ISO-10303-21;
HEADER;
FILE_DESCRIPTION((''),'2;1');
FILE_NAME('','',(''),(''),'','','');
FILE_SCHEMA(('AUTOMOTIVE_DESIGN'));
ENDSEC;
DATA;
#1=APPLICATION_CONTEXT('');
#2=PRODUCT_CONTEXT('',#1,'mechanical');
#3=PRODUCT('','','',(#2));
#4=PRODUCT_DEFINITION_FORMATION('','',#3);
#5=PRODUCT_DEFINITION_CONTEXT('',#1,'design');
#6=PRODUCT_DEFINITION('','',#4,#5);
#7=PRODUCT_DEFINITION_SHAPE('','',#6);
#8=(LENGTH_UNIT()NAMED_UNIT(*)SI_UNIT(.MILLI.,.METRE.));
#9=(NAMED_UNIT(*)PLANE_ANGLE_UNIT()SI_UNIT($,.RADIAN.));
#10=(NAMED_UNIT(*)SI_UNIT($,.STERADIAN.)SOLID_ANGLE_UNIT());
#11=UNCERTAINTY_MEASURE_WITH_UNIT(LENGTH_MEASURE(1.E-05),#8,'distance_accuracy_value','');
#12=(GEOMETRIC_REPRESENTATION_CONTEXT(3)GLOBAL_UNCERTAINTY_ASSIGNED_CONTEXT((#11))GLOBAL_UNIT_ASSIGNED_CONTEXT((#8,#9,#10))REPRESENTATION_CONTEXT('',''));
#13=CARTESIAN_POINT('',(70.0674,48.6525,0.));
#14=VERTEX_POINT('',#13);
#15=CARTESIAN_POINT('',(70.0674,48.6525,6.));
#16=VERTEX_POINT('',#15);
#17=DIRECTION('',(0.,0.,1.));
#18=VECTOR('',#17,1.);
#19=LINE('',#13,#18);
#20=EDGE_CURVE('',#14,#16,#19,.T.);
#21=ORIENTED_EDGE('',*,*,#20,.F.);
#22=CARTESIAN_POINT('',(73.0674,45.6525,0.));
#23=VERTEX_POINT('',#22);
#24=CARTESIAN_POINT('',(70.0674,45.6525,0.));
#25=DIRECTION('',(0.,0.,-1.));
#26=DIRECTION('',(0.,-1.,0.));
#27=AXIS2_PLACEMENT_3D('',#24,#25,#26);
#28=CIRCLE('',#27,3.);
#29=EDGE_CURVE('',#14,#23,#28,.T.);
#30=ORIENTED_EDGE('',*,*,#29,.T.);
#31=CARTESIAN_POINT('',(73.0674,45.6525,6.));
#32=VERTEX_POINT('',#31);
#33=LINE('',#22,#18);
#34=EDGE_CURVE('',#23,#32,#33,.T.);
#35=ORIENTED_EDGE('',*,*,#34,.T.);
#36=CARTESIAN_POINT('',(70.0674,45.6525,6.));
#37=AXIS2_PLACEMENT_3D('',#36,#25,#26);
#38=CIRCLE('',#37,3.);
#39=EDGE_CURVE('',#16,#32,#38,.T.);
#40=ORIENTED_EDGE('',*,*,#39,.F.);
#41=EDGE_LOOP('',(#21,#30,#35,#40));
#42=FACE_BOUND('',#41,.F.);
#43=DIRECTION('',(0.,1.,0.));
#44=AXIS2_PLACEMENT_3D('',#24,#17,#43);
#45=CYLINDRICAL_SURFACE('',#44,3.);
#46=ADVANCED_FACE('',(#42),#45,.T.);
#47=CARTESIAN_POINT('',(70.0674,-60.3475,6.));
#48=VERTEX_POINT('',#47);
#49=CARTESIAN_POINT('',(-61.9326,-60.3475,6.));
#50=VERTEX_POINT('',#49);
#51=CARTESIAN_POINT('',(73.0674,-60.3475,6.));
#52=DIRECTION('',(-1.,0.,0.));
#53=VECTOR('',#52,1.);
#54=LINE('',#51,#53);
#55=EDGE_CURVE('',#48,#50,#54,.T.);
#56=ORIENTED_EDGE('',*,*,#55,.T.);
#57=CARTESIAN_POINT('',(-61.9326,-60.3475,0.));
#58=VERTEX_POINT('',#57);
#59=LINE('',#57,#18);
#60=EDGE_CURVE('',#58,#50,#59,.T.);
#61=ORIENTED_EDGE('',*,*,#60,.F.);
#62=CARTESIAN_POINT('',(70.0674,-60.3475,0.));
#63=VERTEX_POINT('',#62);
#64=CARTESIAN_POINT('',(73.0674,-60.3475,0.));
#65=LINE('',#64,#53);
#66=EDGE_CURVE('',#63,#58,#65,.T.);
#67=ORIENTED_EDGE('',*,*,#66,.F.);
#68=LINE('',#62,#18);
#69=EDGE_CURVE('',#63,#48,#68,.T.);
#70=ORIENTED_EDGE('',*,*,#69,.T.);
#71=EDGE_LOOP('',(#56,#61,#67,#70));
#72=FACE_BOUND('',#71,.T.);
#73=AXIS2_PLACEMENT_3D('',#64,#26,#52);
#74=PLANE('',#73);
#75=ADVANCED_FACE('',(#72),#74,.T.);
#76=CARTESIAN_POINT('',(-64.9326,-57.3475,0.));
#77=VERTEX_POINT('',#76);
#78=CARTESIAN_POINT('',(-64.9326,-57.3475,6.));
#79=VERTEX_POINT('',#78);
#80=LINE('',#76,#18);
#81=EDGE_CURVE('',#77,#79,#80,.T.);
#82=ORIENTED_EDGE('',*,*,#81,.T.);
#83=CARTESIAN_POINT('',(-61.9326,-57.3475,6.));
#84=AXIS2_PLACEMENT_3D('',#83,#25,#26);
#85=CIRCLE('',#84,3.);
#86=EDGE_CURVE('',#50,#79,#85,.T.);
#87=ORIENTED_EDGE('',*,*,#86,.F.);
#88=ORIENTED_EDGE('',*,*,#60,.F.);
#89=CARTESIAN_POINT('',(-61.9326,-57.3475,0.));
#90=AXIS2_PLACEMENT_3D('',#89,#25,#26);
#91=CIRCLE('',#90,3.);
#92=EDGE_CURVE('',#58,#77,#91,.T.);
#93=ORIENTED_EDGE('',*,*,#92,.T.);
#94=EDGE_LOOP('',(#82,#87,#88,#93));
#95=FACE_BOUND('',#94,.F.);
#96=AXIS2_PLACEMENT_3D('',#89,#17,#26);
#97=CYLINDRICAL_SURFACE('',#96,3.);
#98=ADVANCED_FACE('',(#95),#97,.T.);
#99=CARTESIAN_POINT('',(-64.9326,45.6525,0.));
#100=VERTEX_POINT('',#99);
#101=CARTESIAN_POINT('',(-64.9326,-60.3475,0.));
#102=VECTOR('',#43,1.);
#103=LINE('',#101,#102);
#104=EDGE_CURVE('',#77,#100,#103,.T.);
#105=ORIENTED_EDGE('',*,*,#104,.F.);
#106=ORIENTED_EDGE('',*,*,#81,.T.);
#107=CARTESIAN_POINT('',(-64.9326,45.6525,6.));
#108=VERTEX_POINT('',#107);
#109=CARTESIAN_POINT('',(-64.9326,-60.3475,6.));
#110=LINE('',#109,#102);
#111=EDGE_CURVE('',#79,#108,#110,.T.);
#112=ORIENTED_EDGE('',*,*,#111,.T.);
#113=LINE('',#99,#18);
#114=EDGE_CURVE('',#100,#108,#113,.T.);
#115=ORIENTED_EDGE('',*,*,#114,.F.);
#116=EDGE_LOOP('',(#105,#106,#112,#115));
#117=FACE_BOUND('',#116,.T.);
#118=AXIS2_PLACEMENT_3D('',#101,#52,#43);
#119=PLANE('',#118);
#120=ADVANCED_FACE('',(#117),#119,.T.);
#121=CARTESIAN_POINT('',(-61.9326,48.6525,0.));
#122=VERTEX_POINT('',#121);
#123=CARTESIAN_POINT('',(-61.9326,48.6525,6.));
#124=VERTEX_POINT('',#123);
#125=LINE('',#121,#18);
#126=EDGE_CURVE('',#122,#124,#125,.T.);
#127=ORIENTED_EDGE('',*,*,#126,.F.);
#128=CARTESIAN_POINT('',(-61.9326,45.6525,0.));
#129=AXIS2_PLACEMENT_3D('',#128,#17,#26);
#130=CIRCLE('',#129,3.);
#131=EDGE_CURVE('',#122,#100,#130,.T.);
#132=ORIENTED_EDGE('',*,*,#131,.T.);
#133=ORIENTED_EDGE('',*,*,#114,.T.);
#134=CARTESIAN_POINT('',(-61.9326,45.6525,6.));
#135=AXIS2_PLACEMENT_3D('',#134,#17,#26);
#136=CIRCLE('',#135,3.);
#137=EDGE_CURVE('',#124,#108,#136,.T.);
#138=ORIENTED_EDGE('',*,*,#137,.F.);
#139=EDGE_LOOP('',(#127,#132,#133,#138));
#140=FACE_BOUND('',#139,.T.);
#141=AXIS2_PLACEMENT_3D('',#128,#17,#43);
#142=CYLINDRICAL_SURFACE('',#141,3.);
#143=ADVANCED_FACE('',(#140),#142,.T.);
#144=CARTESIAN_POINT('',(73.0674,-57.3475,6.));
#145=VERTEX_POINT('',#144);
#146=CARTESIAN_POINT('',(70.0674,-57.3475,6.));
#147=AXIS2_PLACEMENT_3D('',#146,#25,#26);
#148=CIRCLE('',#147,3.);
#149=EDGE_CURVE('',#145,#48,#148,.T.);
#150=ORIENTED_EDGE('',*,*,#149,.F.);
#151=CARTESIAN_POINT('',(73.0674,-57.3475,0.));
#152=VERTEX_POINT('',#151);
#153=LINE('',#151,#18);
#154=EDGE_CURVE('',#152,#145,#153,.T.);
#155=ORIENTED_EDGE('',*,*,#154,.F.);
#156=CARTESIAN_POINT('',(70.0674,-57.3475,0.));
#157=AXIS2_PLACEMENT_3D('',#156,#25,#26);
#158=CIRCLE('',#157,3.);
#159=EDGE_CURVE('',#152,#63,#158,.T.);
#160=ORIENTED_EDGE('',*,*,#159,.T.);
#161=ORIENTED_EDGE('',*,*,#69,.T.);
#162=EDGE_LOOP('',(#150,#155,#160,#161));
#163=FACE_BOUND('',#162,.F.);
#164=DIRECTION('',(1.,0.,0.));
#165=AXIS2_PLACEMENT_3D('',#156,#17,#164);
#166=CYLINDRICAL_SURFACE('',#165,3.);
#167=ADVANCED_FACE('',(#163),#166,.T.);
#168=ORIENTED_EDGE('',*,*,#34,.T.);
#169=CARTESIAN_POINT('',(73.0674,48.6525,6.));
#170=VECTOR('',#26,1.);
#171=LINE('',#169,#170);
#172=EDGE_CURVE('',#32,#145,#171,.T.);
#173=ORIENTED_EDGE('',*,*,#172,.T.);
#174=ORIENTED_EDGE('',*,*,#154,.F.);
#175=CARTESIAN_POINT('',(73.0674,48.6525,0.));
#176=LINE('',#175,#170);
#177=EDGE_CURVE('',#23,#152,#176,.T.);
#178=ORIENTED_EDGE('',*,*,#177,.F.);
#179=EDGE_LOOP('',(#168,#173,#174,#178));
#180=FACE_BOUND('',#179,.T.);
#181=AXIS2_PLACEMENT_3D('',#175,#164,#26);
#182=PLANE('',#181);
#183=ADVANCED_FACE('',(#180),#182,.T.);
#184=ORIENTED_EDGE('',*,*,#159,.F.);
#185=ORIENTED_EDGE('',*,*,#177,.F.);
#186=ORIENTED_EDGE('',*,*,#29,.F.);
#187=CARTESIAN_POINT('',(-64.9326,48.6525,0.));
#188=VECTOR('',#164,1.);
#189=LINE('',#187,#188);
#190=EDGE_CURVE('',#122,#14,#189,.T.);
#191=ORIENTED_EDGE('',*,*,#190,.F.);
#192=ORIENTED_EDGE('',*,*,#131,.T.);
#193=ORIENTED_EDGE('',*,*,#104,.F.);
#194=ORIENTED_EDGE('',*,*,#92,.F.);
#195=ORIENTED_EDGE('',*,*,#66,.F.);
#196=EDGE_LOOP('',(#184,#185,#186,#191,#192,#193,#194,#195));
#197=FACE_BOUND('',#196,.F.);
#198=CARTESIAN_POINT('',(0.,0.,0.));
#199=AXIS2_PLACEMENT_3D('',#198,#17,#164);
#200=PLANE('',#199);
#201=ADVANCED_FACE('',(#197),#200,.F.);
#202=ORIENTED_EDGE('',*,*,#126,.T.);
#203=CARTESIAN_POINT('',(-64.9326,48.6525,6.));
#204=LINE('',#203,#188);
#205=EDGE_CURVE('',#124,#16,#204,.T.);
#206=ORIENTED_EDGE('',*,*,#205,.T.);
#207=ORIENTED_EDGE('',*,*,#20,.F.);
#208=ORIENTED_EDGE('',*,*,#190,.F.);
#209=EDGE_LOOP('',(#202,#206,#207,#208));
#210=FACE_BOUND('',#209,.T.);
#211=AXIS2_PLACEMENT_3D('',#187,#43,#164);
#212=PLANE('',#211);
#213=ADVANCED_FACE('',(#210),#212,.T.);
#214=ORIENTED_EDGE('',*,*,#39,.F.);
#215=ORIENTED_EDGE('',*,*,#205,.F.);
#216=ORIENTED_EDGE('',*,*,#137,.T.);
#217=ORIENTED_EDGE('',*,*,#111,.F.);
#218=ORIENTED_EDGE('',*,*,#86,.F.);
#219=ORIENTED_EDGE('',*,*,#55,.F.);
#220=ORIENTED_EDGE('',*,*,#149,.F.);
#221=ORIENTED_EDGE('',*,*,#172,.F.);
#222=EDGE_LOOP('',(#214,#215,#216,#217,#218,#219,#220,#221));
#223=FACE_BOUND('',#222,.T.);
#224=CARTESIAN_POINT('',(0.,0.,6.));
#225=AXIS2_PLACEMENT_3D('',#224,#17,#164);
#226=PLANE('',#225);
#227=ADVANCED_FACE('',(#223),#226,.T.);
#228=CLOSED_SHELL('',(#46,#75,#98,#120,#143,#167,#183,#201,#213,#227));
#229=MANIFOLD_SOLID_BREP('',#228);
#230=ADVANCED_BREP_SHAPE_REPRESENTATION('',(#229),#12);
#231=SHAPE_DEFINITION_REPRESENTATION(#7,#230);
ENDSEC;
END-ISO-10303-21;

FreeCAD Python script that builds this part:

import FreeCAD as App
import Part
import Sketcher
Q = App.Units.Quantity


def edges_at(feature, points):
    """Names of the edges that pass closest to the given points."""
    edges = feature.Shape.Edges
    near = lambda p: min(range(len(edges)), key=lambda i: edges[i].distToShape(Part.Vertex(*p))[0])
    return sorted({f"Edge{near(p) + 1}" for p in points})


def add_polygon(sketch, points):
    """Adds a closed chain of lines whose ends are joined by coincident constraints."""
    first, n = sketch.GeometryCount, len(points)
    for a, b in zip(points, points[1:] + points[:1]):
        sketch.addGeometry(Part.LineSegment(App.Vector(*a, 0), App.Vector(*b, 0)), False)
    for i in range(n):
        sketch.addConstraint(Sketcher.Constraint("Coincident", first + i, 2, first + (i + 1) % n, 1))

doc = App.newDocument("Part")
body = doc.addObject("PartDesign::Body", "Body")

sketch1 = doc.addObject("Sketcher::SketchObject", "Sketch")
body.addObject(sketch1)
sketch1.AttachmentSupport = (doc.XY_Plane, [""])
sketch1.MapMode = "FlatFace"
add_polygon(sketch1, [(73.0674, 48.6525), (-64.9326, 48.6525), (-64.9326, -60.3475), (73.0674, -60.3475)])
sketch1.addConstraint([
    Sketcher.Constraint("Horizontal", 0),
    Sketcher.Constraint("Vertical", 1),
    Sketcher.Constraint("Horizontal", 2),
    Sketcher.Constraint("Vertical", 3),
    Sketcher.Constraint("DistanceX", 0, 2, 0, 1, Q("138 mm")),
    Sketcher.Constraint("DistanceY", 1, 2, 1, 1, Q("109 mm")),
    Sketcher.Constraint("DistanceX", 0, 2, -1, 1, Q("64.9326 mm")),
    Sketcher.Constraint("DistanceY", -1, 1, 0, 2, Q("48.6525 mm")),
])
pad1 = doc.addObject("PartDesign::Pad", "Pad")
body.addObject(pad1)
pad1.Profile = sketch1
pad1.Length = 6
doc.recompute()

fillet = doc.addObject("PartDesign::Fillet", "Fillet")
body.addObject(fillet)
fillet.Base = (pad1, edges_at(pad1, [
    (73.067, 48.653, 3),
    (-64.933, 48.653, 3),
    (73.067, -60.347, 3),
    (-64.933, -60.347, 3),
]))
fillet.Radius = 3

doc.recompute()
